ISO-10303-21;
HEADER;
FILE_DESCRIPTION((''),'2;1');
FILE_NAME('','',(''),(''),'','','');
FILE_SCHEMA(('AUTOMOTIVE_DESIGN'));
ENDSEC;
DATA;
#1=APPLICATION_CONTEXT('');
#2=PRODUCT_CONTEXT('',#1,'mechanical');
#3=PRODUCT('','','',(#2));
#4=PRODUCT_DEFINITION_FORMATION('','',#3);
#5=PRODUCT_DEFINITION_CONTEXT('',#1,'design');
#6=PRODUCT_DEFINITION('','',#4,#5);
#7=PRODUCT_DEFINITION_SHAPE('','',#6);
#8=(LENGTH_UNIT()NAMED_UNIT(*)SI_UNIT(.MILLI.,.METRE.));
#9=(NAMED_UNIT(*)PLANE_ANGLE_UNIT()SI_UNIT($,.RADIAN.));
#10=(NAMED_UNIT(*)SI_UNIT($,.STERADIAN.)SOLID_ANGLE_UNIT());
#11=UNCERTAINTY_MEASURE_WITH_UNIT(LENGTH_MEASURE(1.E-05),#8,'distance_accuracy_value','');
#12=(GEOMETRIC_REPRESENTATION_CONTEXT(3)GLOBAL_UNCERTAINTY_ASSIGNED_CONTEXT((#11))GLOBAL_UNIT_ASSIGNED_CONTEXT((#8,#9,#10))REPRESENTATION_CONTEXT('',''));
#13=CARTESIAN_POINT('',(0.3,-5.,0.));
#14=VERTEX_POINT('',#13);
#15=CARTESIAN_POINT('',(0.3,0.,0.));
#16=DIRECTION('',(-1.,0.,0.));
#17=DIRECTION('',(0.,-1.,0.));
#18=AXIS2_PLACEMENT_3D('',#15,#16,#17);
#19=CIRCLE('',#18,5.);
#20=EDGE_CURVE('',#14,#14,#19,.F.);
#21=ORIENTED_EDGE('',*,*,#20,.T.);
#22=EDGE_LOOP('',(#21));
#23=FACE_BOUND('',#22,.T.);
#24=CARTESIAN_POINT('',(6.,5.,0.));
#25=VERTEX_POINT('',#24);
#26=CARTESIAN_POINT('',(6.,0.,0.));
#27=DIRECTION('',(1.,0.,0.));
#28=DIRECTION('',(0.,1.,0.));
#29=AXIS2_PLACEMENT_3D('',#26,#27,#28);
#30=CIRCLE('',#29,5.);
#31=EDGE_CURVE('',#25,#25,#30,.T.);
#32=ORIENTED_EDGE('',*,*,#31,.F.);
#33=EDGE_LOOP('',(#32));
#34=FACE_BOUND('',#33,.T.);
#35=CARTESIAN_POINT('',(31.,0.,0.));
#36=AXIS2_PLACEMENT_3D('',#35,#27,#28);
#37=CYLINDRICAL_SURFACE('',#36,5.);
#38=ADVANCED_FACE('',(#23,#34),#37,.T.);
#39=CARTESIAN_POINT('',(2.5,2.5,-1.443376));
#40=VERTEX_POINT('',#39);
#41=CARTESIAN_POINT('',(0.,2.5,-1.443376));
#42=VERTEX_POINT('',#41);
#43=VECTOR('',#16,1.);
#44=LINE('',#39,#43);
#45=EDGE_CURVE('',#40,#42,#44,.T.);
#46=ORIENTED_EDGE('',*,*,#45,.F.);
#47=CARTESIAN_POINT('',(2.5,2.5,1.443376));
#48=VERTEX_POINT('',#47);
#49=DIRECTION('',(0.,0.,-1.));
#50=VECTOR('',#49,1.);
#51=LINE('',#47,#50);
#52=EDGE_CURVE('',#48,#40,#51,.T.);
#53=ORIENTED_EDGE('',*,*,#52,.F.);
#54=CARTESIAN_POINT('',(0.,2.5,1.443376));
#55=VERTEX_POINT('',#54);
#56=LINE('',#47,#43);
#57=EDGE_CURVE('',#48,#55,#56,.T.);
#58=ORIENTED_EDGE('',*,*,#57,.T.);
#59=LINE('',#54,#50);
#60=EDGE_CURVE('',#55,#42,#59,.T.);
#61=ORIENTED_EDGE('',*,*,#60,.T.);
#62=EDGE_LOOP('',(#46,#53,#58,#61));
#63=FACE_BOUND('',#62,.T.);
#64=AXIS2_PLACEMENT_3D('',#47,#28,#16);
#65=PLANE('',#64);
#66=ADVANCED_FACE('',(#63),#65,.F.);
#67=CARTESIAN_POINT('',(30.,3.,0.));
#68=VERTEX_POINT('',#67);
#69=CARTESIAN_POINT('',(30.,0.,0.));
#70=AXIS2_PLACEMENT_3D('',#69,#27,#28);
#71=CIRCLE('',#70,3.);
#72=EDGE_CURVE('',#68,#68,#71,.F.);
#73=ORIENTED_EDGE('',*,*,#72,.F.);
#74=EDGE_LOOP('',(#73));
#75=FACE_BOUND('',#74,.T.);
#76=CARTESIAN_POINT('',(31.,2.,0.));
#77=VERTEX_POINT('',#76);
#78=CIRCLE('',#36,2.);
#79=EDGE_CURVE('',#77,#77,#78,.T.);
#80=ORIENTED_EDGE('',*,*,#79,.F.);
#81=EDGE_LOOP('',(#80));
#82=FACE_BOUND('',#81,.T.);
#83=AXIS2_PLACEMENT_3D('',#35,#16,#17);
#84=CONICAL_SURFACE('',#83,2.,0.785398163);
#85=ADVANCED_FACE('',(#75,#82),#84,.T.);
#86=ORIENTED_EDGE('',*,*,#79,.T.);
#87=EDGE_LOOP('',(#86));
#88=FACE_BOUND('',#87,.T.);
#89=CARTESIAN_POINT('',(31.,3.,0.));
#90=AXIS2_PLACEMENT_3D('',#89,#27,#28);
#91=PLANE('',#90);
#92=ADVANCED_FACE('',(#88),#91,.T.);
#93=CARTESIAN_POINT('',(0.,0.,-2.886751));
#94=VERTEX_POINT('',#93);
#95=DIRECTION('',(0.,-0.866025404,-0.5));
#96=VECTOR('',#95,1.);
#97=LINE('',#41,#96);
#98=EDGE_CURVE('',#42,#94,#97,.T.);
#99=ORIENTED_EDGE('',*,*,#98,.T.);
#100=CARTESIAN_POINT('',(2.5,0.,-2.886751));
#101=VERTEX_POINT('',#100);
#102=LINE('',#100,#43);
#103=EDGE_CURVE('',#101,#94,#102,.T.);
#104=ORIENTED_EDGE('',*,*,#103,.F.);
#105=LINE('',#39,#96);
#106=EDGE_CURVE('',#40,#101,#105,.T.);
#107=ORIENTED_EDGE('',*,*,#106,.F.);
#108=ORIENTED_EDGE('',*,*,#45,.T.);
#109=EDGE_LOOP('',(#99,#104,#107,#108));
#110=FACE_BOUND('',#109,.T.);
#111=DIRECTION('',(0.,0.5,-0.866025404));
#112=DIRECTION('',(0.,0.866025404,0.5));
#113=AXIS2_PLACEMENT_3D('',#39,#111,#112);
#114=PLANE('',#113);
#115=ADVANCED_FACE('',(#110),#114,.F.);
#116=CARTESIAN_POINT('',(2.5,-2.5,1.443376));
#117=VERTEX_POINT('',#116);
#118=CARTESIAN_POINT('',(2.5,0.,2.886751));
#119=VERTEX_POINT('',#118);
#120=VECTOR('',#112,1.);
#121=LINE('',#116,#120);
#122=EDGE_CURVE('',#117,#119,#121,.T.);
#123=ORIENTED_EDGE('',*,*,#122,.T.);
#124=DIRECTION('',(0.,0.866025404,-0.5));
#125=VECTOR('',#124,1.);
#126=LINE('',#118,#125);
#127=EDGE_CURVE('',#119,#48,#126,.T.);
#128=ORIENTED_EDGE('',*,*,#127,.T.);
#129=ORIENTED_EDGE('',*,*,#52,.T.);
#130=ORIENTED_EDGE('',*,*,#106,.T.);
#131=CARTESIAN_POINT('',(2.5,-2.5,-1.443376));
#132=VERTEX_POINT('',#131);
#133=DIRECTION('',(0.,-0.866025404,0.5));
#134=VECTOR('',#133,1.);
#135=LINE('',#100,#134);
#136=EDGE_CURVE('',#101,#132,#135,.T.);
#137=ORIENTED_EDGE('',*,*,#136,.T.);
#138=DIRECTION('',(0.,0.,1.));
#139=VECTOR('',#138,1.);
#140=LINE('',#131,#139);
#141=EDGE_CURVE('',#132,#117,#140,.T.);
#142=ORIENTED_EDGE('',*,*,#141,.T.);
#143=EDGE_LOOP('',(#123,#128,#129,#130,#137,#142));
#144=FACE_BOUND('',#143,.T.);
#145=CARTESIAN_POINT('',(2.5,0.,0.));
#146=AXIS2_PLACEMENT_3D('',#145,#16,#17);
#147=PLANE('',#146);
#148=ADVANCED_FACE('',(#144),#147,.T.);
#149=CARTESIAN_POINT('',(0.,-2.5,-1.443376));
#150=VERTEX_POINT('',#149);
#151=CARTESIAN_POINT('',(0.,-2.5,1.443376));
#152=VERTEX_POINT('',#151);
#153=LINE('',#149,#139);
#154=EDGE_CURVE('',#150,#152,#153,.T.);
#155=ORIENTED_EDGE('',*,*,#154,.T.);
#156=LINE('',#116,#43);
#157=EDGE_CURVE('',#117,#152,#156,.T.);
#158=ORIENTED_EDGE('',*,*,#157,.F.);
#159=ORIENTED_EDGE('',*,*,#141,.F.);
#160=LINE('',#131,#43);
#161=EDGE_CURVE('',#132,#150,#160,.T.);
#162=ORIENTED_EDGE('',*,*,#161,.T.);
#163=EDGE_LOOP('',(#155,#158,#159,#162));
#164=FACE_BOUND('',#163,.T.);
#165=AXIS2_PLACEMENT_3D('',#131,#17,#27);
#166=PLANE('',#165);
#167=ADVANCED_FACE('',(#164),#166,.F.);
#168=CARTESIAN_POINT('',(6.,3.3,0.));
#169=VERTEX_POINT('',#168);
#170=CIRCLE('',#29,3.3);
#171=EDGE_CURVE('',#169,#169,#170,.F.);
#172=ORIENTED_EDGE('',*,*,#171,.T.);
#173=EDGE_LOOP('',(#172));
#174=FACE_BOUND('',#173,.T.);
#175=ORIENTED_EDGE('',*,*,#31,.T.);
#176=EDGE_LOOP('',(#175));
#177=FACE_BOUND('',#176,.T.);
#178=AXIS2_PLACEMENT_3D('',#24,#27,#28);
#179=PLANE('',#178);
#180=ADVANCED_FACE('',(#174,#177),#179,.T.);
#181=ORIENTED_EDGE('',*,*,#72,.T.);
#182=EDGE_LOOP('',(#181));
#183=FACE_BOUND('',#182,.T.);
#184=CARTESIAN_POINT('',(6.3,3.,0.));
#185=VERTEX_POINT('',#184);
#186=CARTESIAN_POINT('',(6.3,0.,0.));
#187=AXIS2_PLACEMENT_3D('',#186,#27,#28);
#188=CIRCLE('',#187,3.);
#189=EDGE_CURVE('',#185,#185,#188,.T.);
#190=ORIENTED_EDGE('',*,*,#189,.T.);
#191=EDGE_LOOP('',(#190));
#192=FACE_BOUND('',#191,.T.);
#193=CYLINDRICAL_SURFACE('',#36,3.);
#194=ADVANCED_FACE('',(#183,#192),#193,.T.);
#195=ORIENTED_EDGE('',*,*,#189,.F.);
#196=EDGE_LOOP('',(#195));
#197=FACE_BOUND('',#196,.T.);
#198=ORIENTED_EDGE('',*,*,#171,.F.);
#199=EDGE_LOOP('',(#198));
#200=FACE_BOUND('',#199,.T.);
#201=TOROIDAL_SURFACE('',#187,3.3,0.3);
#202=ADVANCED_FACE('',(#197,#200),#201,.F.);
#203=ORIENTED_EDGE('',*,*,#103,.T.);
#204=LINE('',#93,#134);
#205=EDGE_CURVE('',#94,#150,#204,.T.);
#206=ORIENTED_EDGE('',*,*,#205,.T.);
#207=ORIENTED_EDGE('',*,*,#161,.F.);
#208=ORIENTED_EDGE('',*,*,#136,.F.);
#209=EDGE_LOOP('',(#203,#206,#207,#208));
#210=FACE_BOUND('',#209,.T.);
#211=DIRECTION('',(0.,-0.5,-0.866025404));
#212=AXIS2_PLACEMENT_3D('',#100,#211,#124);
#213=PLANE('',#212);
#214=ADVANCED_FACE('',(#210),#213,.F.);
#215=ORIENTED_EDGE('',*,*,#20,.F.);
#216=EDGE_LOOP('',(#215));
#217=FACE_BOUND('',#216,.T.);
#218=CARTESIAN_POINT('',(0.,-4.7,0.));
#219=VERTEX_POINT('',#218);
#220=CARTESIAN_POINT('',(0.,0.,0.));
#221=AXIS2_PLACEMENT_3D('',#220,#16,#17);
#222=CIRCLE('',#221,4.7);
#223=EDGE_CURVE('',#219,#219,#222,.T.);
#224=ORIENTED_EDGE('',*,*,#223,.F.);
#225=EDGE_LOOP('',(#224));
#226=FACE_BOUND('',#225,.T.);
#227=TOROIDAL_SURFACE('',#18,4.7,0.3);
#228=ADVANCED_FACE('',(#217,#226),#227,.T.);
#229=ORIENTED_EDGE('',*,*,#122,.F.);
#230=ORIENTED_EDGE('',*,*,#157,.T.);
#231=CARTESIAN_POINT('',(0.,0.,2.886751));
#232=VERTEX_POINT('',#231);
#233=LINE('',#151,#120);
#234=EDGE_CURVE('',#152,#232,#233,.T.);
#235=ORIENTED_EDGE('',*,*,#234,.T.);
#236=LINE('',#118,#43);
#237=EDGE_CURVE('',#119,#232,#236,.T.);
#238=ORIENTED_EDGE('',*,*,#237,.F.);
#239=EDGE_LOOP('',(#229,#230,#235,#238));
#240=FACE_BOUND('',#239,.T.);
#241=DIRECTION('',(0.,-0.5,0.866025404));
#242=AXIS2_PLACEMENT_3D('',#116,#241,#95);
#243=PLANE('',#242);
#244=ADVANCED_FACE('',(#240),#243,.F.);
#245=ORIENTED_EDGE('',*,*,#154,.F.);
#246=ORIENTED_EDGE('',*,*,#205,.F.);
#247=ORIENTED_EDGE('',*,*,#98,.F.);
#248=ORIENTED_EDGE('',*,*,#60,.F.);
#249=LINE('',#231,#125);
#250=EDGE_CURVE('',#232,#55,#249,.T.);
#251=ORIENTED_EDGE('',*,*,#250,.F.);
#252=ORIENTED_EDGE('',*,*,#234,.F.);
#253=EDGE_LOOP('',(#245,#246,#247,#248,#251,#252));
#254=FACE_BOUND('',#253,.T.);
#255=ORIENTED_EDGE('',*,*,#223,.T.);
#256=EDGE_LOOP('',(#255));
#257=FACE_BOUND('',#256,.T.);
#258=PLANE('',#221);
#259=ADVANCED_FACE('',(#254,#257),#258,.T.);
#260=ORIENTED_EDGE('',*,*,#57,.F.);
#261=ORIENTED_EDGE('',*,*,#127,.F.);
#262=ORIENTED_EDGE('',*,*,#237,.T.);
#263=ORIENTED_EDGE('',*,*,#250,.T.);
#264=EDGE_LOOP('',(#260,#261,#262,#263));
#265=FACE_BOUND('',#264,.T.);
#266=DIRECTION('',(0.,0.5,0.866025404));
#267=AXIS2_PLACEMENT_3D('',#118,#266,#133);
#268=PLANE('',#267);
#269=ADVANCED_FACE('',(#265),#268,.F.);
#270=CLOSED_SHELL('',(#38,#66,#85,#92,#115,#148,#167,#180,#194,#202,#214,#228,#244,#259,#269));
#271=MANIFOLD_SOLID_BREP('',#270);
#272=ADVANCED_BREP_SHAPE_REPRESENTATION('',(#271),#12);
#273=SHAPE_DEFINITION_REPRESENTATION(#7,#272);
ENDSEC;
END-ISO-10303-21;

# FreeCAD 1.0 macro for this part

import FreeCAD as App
import Part
import Sketcher
from FreeCAD import Vector
Q = App.Units.Quantity


def edges_at(feature, points):
    """Names of the edges that pass closest to the given points."""
    edges = feature.Shape.Edges
    near = lambda p: min(range(len(edges)), key=lambda i: edges[i].distToShape(Part.Vertex(*p))[0])
    return sorted({f"Edge{near(p) + 1}" for p in points})


def add_polygon(sketch, points):
    """Adds a closed chain of lines whose ends are joined by coincident constraints."""
    first, n = sketch.GeometryCount, len(points)
    for a, b in zip(points, points[1:] + points[:1]):
        sketch.addGeometry(Part.LineSegment(App.Vector(*a, 0), App.Vector(*b, 0)), False)
    for i in range(n):
        sketch.addConstraint(Sketcher.Constraint("Coincident", first + i, 2, first + (i + 1) % n, 1))

doc = App.newDocument("Part")
body = doc.addObject("PartDesign::Body", "Body")

# Sketch on XY plane
sketch1 = body.newObject("Sketcher::SketchObject", "Sketch")
sketch1.AttachmentSupport = (doc.getObject("XY_Plane"), [""])
sketch1.MapMode = "FlatFace"
add_polygon(sketch1, [(0, 5), (0, 0), (31, 0), (31, 3), (6, 3), (6, 5)])  # lines 0-5
sketch1.addConstraint([
    Sketcher.Constraint("Vertical", 0),
    Sketcher.Constraint("Horizontal", 1),
    Sketcher.Constraint("Vertical", 2),
    Sketcher.Constraint("Horizontal", 3),
    Sketcher.Constraint("Vertical", 4),
    Sketcher.Constraint("Horizontal", 5),
    Sketcher.Constraint("Coincident", 0, 2, -1, 1),
    Sketcher.Constraint("DistanceX", 1, 1, 1, 2, 31.0),
    Sketcher.Constraint("DistanceX", 3, 2, 3, 1, 25.0),
    Sketcher.Constraint("DistanceY", 0, 2, 0, 1, 5.0),
    Sketcher.Constraint("DistanceY", 2, 1, 2, 2, 3.0),
])
revolution = body.newObject("PartDesign::Revolution", "Revolution")
revolution.Profile = sketch1
revolution.ReferenceAxis = (sketch1, ["H_Axis"])
revolution.Angle = 360

# Sketch on YZ plane
sketch2 = body.newObject("Sketcher::SketchObject", "Sketch001")
sketch2.AttachmentSupport = (doc.getObject("YZ_Plane"), [""])
sketch2.MapMode = "FlatFace"
add_polygon(sketch2, [(2.5, -1.443376), (0, -2.886751), (-2.5, -1.443376), (-2.5, 1.443376), (0, 2.886751), (2.5, 1.443376)])  # lines 0-5
sketch2.addConstraint([
    Sketcher.Constraint("Vertical", 2),
    Sketcher.Constraint("Vertical", 5),
    Sketcher.Constraint("Symmetric", 0, 2, 3, 2, -1, 1),
    Sketcher.Constraint("Symmetric", 1, 2, 4, 2, -1, 1),
    Sketcher.Constraint("PointOnObject", 0, 2, -2),
    Sketcher.Constraint("Parallel", 0, 3),
    Sketcher.Constraint("Horizontal", 2, 2, 4, 2),
    Sketcher.Constraint("Angle", 0, Q("-150 deg")),
    Sketcher.Constraint("DistanceX", 2, 2, 4, 2, 5.0),
    Sketcher.Constraint("DistanceY", 2, 1, 2, 2, 2.886751),
])
pocket1 = body.newObject("PartDesign::Pocket", "Pocket")
pocket1.Profile = sketch2
pocket1.Length = 2.5
pocket1.Reversed = True
doc.recompute()

fillet = body.newObject("PartDesign::Fillet", "Fillet")
fillet.Base = (pocket1, edges_at(pocket1, [(6, -3, 0), (0, -5, 0)]))
fillet.Radius = 0.3
doc.recompute()

chamfer = body.newObject("PartDesign::Chamfer", "Chamfer")
chamfer.Base = (fillet, edges_at(fillet, [(31, -3, 0)]))
chamfer.Size = 1

doc.recompute()
